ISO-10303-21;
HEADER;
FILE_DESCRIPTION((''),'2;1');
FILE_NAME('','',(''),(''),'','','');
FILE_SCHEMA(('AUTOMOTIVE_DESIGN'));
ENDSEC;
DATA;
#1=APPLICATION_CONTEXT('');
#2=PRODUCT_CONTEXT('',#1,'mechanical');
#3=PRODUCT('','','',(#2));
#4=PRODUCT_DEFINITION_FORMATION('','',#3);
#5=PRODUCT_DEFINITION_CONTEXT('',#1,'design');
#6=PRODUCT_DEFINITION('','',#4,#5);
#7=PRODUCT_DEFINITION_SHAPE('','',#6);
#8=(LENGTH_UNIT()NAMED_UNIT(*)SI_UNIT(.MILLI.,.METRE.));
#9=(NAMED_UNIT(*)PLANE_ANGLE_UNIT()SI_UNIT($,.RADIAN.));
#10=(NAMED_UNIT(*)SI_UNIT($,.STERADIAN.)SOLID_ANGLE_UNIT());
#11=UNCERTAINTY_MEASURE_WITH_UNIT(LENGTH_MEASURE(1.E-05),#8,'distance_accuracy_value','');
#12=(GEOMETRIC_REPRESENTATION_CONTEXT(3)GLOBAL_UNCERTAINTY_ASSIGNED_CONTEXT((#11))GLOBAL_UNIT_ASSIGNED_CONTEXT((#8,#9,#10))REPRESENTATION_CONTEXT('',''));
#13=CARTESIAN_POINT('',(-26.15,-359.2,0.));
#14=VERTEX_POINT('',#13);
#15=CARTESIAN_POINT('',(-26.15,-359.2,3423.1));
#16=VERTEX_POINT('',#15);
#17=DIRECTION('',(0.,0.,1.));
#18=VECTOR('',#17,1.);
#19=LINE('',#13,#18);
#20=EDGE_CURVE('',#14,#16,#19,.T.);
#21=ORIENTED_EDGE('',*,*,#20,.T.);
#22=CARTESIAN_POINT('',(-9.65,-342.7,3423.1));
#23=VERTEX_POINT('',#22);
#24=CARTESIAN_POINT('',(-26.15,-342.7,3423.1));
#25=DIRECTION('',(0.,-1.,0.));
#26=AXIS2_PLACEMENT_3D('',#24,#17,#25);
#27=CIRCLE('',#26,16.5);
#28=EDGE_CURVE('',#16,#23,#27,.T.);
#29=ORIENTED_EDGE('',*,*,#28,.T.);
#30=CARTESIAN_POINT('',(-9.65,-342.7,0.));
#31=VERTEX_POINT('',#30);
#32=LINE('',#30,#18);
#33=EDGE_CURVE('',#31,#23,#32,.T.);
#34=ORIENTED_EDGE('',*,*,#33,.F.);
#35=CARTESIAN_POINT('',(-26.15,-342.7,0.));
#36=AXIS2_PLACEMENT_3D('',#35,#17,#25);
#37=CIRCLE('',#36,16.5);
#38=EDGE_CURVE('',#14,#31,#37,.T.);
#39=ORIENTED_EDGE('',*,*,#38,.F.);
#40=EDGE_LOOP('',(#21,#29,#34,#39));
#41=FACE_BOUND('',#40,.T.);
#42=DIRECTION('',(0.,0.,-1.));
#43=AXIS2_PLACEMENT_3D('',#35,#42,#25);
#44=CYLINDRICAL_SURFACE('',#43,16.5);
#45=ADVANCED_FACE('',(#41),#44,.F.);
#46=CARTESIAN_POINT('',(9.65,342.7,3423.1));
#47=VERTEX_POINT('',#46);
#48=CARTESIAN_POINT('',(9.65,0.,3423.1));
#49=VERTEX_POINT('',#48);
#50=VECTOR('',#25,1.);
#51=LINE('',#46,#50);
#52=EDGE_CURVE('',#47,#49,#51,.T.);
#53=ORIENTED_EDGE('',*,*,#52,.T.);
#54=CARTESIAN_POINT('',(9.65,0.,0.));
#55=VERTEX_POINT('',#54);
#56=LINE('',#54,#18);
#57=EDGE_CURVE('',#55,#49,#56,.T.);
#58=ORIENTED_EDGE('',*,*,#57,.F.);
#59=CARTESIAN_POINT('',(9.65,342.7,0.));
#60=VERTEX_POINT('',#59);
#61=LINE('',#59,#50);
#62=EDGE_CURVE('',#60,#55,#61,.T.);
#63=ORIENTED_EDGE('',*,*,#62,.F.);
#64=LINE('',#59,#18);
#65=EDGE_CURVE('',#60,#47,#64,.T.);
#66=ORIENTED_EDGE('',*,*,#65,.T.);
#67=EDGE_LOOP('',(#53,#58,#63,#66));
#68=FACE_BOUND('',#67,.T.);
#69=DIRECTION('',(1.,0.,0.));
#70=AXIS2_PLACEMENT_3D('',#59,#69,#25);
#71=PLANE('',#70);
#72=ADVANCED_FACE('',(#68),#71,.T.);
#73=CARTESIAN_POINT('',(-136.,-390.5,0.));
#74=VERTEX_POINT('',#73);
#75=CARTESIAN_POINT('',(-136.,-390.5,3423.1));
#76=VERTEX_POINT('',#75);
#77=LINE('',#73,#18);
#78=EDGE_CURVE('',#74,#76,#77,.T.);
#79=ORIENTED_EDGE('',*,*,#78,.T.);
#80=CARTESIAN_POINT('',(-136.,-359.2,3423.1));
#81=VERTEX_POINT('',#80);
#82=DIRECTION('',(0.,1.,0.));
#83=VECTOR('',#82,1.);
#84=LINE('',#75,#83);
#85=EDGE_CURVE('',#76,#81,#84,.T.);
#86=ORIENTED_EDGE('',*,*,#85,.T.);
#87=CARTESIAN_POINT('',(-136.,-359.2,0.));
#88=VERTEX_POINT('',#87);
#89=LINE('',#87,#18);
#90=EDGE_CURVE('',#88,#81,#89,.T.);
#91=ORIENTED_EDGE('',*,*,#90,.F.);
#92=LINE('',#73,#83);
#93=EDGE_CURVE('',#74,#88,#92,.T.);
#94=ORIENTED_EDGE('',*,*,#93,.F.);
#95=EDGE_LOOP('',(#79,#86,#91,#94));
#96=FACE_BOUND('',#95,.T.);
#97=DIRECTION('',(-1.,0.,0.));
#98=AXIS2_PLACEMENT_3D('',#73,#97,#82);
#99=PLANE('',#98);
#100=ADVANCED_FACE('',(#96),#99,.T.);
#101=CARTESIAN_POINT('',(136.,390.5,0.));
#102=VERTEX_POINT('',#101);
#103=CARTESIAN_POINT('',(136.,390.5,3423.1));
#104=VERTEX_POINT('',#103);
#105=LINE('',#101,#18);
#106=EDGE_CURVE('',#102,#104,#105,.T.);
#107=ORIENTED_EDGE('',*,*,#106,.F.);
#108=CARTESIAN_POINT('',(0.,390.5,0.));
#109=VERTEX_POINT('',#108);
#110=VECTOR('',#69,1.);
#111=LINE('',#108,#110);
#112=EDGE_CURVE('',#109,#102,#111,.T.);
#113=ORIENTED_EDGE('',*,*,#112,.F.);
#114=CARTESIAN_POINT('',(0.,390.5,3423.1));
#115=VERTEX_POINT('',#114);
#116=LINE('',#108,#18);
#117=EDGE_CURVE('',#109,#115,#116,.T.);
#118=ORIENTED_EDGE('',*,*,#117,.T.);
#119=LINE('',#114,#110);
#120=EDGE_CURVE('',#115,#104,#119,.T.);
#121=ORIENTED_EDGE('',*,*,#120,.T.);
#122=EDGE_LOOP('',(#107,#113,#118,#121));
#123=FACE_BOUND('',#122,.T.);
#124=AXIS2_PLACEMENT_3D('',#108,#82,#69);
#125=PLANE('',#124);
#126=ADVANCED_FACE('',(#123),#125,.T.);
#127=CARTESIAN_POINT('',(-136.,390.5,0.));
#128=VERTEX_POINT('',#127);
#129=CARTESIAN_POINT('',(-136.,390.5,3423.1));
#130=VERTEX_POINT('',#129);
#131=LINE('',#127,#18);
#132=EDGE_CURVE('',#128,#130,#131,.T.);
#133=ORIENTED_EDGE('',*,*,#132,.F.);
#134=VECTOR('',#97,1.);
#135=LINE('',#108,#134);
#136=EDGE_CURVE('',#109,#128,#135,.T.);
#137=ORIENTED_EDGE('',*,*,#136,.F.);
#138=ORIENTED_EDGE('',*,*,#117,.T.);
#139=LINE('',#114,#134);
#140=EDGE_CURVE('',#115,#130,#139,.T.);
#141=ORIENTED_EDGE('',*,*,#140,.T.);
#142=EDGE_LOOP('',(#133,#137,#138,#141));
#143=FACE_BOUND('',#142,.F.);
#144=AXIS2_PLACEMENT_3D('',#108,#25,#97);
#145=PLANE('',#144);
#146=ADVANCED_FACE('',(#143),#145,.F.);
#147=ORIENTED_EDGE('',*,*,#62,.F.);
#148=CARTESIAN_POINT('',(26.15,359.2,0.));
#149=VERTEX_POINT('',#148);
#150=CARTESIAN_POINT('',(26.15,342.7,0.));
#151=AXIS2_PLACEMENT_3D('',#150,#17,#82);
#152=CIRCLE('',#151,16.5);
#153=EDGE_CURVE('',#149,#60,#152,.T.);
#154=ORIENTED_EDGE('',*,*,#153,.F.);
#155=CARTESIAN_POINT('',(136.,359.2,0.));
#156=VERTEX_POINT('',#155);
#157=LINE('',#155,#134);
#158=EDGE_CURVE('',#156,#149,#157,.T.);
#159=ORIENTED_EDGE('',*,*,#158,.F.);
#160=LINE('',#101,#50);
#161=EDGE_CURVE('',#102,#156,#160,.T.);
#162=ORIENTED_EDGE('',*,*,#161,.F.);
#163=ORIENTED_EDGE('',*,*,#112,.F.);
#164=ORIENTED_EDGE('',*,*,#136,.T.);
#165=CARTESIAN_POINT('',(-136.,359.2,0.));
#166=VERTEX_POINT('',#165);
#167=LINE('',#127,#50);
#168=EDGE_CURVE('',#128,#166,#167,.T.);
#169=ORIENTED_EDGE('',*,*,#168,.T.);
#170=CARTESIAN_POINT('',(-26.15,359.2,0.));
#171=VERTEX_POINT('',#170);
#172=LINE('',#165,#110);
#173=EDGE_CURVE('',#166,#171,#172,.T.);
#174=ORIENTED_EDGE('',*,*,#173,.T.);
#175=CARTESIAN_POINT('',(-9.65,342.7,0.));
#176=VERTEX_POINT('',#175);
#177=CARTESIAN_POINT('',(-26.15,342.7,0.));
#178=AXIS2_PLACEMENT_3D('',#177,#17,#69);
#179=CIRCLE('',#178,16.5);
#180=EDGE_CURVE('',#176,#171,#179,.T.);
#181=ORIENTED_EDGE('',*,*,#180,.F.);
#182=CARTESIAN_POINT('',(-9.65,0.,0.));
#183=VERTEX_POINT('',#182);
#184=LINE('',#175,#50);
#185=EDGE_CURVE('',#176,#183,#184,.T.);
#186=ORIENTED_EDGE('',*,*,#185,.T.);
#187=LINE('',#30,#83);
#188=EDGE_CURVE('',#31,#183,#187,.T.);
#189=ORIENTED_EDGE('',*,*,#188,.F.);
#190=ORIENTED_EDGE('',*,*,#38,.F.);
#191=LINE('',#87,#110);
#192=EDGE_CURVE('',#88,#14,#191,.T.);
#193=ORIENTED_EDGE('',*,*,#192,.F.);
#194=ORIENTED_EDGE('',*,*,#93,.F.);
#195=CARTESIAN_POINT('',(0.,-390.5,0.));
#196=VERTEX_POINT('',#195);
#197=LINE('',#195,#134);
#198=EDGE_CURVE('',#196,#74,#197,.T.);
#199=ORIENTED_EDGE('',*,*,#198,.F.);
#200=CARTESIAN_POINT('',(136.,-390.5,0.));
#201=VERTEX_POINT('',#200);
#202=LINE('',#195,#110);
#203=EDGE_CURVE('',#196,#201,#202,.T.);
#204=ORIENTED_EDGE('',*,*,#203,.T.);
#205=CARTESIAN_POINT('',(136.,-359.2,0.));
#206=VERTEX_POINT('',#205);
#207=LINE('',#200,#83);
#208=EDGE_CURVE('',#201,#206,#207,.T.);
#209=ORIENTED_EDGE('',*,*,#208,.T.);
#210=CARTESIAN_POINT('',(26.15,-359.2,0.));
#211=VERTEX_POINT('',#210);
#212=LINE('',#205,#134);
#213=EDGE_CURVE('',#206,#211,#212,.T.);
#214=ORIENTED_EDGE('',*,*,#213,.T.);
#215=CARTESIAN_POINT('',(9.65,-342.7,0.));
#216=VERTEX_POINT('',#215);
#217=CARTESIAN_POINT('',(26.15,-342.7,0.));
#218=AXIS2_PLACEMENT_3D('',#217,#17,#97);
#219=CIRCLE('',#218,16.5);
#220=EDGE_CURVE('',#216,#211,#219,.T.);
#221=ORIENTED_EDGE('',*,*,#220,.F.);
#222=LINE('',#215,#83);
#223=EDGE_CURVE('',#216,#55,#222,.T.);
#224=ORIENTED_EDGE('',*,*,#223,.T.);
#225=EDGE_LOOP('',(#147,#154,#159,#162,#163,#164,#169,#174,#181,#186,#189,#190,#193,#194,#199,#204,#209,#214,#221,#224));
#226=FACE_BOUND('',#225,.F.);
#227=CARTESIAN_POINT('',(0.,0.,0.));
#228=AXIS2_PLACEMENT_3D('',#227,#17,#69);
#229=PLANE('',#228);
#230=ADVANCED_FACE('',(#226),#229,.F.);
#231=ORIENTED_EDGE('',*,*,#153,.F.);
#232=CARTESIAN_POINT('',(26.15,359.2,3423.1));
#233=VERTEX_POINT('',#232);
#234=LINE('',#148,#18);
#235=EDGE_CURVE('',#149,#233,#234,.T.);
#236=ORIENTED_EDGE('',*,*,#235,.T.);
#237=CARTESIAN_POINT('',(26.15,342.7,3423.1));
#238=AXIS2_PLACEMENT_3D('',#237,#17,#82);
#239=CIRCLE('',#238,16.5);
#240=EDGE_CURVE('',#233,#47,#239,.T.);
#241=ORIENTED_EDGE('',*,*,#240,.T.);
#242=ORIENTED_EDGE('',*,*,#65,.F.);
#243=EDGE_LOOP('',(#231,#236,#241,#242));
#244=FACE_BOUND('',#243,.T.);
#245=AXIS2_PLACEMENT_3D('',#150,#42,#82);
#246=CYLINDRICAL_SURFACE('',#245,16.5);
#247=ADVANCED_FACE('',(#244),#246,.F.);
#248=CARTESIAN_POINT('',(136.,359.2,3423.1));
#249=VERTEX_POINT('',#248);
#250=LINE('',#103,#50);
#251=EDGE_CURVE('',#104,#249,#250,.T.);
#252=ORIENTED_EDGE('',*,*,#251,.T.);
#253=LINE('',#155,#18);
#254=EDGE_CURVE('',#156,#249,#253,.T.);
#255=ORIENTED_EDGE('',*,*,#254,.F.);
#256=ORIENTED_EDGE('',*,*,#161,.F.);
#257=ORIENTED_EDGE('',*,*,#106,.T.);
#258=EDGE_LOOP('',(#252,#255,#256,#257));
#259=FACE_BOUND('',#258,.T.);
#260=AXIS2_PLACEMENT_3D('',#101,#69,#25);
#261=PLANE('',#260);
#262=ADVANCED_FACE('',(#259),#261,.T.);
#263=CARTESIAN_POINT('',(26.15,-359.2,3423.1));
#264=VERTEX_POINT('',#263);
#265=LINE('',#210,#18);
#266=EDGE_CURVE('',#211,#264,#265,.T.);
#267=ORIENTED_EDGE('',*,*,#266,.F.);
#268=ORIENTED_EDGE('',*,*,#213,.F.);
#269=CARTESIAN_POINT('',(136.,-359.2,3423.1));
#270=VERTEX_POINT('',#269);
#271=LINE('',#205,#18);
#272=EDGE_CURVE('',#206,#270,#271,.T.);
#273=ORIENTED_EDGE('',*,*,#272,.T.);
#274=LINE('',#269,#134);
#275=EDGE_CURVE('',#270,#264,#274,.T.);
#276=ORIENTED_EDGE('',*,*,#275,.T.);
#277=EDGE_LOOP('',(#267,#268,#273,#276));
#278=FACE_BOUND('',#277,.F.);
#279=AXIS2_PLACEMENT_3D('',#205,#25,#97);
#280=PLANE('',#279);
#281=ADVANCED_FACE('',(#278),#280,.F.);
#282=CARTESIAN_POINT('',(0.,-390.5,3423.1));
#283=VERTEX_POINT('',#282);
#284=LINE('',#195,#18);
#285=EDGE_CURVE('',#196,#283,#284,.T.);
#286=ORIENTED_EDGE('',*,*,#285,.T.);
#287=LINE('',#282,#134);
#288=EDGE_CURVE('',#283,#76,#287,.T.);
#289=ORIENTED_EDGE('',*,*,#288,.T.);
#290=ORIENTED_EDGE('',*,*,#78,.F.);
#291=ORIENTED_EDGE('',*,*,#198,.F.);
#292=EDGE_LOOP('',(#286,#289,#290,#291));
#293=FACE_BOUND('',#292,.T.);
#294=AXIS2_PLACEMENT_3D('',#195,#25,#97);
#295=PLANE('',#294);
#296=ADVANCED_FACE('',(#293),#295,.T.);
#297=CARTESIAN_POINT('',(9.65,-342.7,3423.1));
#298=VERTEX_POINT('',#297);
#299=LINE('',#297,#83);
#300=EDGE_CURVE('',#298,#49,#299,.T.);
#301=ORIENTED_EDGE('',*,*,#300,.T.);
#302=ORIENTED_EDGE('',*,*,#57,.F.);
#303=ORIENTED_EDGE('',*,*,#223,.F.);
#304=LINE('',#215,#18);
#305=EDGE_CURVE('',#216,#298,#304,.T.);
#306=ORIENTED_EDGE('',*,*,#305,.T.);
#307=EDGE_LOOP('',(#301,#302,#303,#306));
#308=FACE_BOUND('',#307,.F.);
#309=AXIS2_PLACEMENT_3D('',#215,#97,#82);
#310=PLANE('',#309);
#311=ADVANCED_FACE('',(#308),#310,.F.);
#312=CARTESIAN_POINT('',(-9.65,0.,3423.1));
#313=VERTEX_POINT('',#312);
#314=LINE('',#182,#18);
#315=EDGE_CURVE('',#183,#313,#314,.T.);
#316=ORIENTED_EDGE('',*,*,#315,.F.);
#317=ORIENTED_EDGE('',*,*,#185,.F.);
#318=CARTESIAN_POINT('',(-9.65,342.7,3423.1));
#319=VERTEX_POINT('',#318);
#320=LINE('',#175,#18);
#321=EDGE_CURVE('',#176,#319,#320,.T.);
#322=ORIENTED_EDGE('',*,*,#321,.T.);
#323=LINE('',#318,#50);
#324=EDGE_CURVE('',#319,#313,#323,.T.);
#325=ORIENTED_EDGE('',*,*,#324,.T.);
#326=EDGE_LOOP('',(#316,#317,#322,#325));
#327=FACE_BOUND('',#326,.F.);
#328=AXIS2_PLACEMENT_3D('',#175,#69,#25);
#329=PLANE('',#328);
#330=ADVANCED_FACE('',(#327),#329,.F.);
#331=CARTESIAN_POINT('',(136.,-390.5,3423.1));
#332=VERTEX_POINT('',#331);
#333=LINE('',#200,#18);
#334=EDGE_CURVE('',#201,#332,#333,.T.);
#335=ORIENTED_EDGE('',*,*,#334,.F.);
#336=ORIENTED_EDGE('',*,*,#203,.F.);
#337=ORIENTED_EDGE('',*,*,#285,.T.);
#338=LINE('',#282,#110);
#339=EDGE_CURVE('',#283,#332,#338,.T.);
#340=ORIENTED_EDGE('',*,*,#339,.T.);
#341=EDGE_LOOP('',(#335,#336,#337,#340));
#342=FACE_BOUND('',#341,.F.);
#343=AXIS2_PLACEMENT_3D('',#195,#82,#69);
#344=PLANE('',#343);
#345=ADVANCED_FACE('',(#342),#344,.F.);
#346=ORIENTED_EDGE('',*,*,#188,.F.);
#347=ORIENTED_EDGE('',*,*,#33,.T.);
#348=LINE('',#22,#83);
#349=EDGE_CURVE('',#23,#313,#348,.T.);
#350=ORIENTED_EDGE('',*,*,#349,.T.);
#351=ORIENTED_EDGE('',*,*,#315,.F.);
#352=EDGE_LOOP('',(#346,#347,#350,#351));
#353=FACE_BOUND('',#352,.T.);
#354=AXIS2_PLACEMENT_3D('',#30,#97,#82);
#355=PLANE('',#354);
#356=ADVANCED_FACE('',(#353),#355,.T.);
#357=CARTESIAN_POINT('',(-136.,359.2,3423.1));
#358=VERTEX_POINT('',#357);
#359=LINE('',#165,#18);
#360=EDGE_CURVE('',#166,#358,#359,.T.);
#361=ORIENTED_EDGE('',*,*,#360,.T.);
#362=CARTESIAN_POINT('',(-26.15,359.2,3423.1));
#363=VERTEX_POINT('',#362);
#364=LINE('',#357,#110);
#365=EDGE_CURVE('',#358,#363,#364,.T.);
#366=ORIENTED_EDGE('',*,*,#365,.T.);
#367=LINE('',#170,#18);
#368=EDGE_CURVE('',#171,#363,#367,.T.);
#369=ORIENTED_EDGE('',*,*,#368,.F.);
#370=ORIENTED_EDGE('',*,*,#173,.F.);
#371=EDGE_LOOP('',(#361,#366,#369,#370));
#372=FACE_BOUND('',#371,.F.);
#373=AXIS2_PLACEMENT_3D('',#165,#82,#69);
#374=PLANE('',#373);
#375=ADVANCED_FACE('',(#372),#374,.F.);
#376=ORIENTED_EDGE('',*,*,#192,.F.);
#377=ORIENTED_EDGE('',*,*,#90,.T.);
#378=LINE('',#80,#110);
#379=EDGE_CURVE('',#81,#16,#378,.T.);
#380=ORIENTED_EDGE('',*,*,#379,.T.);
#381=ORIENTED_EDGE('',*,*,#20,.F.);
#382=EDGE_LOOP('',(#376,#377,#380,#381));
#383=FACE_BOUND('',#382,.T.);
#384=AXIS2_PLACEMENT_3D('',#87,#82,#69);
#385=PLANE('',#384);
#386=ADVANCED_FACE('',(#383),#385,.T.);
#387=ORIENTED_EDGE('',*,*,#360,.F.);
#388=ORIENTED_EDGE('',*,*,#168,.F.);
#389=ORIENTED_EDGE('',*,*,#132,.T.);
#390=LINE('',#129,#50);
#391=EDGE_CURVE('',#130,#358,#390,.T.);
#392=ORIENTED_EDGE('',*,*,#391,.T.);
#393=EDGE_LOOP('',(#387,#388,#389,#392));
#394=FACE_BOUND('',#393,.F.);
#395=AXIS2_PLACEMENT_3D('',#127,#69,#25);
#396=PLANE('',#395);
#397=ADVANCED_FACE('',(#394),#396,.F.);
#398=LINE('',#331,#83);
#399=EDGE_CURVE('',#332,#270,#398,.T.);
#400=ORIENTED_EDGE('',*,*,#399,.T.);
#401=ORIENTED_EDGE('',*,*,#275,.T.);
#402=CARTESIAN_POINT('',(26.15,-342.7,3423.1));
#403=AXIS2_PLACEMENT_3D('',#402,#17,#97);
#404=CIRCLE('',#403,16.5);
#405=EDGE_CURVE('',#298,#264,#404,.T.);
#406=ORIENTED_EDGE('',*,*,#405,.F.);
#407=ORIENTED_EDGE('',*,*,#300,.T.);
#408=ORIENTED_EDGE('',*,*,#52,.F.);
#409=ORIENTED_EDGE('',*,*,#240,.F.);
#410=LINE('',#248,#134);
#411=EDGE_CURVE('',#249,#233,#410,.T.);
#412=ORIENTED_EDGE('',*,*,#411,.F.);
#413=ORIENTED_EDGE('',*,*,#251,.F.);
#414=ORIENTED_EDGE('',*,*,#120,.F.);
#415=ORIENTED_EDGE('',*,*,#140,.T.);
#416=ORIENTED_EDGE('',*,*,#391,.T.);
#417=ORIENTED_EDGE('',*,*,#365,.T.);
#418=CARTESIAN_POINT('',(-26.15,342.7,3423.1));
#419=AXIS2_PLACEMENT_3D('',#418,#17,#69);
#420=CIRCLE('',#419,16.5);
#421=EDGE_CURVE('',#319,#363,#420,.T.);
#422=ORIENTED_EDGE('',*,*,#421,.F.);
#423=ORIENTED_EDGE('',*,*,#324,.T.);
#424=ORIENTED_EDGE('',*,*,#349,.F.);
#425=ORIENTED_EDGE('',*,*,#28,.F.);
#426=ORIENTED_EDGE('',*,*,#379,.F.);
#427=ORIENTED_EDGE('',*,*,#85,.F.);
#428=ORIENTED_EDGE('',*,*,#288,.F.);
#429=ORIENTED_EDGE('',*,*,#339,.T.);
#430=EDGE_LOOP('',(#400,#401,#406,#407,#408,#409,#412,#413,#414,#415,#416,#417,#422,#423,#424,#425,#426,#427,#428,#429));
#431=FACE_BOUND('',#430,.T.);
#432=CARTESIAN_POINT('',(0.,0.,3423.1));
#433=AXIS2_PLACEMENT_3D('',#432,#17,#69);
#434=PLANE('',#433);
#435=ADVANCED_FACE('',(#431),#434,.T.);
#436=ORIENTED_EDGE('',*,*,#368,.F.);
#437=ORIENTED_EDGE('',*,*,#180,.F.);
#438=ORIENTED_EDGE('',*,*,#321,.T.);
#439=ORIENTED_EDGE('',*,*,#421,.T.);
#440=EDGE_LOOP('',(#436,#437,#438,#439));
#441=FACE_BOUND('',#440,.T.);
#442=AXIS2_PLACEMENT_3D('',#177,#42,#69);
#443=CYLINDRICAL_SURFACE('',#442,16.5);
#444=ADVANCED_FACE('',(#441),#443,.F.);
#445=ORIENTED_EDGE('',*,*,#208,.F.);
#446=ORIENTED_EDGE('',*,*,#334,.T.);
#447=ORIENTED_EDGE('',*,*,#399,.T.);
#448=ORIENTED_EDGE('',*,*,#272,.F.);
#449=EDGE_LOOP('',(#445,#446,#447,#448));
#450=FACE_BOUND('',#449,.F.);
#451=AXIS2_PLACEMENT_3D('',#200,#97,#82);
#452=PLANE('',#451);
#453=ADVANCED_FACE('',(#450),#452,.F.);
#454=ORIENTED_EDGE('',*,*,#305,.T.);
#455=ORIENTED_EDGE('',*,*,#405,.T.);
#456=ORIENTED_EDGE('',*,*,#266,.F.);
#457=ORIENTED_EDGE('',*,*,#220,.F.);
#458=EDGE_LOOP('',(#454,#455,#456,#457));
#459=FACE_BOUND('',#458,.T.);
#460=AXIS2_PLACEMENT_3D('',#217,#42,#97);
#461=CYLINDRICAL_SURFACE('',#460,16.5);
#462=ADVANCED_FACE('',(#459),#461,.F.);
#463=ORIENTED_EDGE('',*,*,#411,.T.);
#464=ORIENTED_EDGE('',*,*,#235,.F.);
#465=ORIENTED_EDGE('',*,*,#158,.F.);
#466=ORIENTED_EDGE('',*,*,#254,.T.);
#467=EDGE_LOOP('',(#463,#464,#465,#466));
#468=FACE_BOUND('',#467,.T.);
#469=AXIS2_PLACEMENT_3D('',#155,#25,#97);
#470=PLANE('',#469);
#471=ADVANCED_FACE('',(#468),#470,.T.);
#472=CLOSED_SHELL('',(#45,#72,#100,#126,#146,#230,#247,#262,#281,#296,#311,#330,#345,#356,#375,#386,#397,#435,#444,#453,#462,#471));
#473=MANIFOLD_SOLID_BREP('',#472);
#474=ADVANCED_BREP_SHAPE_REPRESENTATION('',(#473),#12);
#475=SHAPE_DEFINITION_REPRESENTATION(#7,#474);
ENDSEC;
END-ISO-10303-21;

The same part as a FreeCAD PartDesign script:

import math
import FreeCAD as App
import Part
import Sketcher
from FreeCAD import Vector
Q = App.Units.Quantity

doc = App.newDocument("Part")
body = doc.addObject("PartDesign::Body", "Body")

# Sketch on XY plane
sketch1 = body.newObject("Sketcher::SketchObject", "Sketch")
sketch1.AttachmentSupport = (doc.getObject("XY_Plane"), [""])
sketch1.MapMode = "FlatFace"
sketch1.addGeometry([
    Part.LineSegment(Vector(-136, -359.2, 0), Vector(-136, -390.5, 0)),  # 0
    Part.LineSegment(Vector(-136, -390.5, 0), Vector(136, -390.5, 0)),  # 1
    Part.LineSegment(Vector(136, -390.5, 0), Vector(136, -359.2, 0)),  # 2
    Part.LineSegment(Vector(136, -359.2, 0), Vector(26.15, -359.2, 0)),  # 3
    Part.ArcOfCircle(Part.Circle(Vector(26.15, -342.7, 0), Vector(0, 0, 1), 16.5), math.radians(180), math.radians(270)),  # 4
    Part.LineSegment(Vector(9.65, -342.7, 0), Vector(9.65, 342.7, 0)),  # 5
    Part.ArcOfCircle(Part.Circle(Vector(26.15, 342.7, 0), Vector(0, 0, 1), 16.5), math.radians(90), math.radians(180)),  # 6
    Part.LineSegment(Vector(26.15, 359.2, 0), Vector(136, 359.2, 0)),  # 7
    Part.LineSegment(Vector(136, 359.2, 0), Vector(136, 390.5, 0)),  # 8
    Part.LineSegment(Vector(136, 390.5, 0), Vector(-136, 390.5, 0)),  # 9
    Part.LineSegment(Vector(-136, 390.5, 0), Vector(-136, 359.2, 0)),  # 10
    Part.LineSegment(Vector(-136, 359.2, 0), Vector(-26.15, 359.2, 0)),  # 11
    Part.ArcOfCircle(Part.Circle(Vector(-26.15, 342.7, 0), Vector(0, 0, 1), 16.5), math.radians(0), math.radians(90)),  # 12
    Part.LineSegment(Vector(-9.65, 342.7, 0), Vector(-9.65, -342.7, 0)),  # 13
    Part.ArcOfCircle(Part.Circle(Vector(-26.15, -342.7, 0), Vector(0, 0, 1), 16.5), math.radians(-90), math.radians(0)),  # 14
    Part.LineSegment(Vector(-26.15, -359.2, 0), Vector(-136, -359.2, 0)),  # 15
], False)
sketch1.addConstraint([
    Sketcher.Constraint("Coincident", 0, 2, 1, 1),
    Sketcher.Constraint("Coincident", 1, 2, 2, 1),
    Sketcher.Constraint("Coincident", 2, 2, 3, 1),
    Sketcher.Constraint("Tangent", 3, 2, 4, 2),
    Sketcher.Constraint("Tangent", 4, 1, 5, 1),
    Sketcher.Constraint("Tangent", 5, 2, 6, 2),
    Sketcher.Constraint("Tangent", 6, 1, 7, 1),
    Sketcher.Constraint("Coincident", 7, 2, 8, 1),
    Sketcher.Constraint("Coincident", 8, 2, 9, 1),
    Sketcher.Constraint("Coincident", 9, 2, 10, 1),
    Sketcher.Constraint("Coincident", 10, 2, 11, 1),
    Sketcher.Constraint("Tangent", 11, 2, 12, 2),
    Sketcher.Constraint("Tangent", 12, 1, 13, 1),
    Sketcher.Constraint("Tangent", 13, 2, 14, 2),
    Sketcher.Constraint("Tangent", 14, 1, 15, 1),
    Sketcher.Constraint("Coincident", 15, 2, 0, 1),
    Sketcher.Constraint("Vertical", 0),
    Sketcher.Constraint("Horizontal", 1),
    Sketcher.Constraint("Vertical", 2),
    Sketcher.Constraint("Horizontal", 3),
    Sketcher.Constraint("Vertical", 5),
    Sketcher.Constraint("Horizontal", 7),
    Sketcher.Constraint("Vertical", 8),
    Sketcher.Constraint("Horizontal", 9),
    Sketcher.Constraint("Vertical", 10),
    Sketcher.Constraint("Horizontal", 11),
    Sketcher.Constraint("Vertical", 13),
    Sketcher.Constraint("Horizontal", 15),
    Sketcher.Constraint("Equal", 4, 6),
    Sketcher.Constraint("Equal", 6, 12),
    Sketcher.Constraint("Equal", 12, 14),
    Sketcher.Constraint("Symmetric", 4, 3, 12, 3, -1, 1),
    Sketcher.Constraint("Symmetric", 0, 2, 8, 2, -1, 1),
    Sketcher.Constraint("Symmetric", 7, 2, 10, 2, -2),
    Sketcher.Constraint("Symmetric", 2, 2, 15, 2, -2),
    Sketcher.Constraint("Radius", 4, Q("16.5 mm")),
    Sketcher.Constraint("DistanceY", 0, 2, 0, 1, Q("31.3 mm")),
    Sketcher.Constraint("DistanceX", 0, 2, -1, 1, Q("136 mm")),
    Sketcher.Constraint("DistanceY", 0, 2, -1, 1, Q("390.5 mm")),
    Sketcher.Constraint("DistanceX", -1, 1, 4, 1, Q("9.65 mm")),
])
pad1 = body.newObject("PartDesign::Pad", "Pad")
pad1.Profile = sketch1
pad1.Length = 3423.1

doc.recompute()
